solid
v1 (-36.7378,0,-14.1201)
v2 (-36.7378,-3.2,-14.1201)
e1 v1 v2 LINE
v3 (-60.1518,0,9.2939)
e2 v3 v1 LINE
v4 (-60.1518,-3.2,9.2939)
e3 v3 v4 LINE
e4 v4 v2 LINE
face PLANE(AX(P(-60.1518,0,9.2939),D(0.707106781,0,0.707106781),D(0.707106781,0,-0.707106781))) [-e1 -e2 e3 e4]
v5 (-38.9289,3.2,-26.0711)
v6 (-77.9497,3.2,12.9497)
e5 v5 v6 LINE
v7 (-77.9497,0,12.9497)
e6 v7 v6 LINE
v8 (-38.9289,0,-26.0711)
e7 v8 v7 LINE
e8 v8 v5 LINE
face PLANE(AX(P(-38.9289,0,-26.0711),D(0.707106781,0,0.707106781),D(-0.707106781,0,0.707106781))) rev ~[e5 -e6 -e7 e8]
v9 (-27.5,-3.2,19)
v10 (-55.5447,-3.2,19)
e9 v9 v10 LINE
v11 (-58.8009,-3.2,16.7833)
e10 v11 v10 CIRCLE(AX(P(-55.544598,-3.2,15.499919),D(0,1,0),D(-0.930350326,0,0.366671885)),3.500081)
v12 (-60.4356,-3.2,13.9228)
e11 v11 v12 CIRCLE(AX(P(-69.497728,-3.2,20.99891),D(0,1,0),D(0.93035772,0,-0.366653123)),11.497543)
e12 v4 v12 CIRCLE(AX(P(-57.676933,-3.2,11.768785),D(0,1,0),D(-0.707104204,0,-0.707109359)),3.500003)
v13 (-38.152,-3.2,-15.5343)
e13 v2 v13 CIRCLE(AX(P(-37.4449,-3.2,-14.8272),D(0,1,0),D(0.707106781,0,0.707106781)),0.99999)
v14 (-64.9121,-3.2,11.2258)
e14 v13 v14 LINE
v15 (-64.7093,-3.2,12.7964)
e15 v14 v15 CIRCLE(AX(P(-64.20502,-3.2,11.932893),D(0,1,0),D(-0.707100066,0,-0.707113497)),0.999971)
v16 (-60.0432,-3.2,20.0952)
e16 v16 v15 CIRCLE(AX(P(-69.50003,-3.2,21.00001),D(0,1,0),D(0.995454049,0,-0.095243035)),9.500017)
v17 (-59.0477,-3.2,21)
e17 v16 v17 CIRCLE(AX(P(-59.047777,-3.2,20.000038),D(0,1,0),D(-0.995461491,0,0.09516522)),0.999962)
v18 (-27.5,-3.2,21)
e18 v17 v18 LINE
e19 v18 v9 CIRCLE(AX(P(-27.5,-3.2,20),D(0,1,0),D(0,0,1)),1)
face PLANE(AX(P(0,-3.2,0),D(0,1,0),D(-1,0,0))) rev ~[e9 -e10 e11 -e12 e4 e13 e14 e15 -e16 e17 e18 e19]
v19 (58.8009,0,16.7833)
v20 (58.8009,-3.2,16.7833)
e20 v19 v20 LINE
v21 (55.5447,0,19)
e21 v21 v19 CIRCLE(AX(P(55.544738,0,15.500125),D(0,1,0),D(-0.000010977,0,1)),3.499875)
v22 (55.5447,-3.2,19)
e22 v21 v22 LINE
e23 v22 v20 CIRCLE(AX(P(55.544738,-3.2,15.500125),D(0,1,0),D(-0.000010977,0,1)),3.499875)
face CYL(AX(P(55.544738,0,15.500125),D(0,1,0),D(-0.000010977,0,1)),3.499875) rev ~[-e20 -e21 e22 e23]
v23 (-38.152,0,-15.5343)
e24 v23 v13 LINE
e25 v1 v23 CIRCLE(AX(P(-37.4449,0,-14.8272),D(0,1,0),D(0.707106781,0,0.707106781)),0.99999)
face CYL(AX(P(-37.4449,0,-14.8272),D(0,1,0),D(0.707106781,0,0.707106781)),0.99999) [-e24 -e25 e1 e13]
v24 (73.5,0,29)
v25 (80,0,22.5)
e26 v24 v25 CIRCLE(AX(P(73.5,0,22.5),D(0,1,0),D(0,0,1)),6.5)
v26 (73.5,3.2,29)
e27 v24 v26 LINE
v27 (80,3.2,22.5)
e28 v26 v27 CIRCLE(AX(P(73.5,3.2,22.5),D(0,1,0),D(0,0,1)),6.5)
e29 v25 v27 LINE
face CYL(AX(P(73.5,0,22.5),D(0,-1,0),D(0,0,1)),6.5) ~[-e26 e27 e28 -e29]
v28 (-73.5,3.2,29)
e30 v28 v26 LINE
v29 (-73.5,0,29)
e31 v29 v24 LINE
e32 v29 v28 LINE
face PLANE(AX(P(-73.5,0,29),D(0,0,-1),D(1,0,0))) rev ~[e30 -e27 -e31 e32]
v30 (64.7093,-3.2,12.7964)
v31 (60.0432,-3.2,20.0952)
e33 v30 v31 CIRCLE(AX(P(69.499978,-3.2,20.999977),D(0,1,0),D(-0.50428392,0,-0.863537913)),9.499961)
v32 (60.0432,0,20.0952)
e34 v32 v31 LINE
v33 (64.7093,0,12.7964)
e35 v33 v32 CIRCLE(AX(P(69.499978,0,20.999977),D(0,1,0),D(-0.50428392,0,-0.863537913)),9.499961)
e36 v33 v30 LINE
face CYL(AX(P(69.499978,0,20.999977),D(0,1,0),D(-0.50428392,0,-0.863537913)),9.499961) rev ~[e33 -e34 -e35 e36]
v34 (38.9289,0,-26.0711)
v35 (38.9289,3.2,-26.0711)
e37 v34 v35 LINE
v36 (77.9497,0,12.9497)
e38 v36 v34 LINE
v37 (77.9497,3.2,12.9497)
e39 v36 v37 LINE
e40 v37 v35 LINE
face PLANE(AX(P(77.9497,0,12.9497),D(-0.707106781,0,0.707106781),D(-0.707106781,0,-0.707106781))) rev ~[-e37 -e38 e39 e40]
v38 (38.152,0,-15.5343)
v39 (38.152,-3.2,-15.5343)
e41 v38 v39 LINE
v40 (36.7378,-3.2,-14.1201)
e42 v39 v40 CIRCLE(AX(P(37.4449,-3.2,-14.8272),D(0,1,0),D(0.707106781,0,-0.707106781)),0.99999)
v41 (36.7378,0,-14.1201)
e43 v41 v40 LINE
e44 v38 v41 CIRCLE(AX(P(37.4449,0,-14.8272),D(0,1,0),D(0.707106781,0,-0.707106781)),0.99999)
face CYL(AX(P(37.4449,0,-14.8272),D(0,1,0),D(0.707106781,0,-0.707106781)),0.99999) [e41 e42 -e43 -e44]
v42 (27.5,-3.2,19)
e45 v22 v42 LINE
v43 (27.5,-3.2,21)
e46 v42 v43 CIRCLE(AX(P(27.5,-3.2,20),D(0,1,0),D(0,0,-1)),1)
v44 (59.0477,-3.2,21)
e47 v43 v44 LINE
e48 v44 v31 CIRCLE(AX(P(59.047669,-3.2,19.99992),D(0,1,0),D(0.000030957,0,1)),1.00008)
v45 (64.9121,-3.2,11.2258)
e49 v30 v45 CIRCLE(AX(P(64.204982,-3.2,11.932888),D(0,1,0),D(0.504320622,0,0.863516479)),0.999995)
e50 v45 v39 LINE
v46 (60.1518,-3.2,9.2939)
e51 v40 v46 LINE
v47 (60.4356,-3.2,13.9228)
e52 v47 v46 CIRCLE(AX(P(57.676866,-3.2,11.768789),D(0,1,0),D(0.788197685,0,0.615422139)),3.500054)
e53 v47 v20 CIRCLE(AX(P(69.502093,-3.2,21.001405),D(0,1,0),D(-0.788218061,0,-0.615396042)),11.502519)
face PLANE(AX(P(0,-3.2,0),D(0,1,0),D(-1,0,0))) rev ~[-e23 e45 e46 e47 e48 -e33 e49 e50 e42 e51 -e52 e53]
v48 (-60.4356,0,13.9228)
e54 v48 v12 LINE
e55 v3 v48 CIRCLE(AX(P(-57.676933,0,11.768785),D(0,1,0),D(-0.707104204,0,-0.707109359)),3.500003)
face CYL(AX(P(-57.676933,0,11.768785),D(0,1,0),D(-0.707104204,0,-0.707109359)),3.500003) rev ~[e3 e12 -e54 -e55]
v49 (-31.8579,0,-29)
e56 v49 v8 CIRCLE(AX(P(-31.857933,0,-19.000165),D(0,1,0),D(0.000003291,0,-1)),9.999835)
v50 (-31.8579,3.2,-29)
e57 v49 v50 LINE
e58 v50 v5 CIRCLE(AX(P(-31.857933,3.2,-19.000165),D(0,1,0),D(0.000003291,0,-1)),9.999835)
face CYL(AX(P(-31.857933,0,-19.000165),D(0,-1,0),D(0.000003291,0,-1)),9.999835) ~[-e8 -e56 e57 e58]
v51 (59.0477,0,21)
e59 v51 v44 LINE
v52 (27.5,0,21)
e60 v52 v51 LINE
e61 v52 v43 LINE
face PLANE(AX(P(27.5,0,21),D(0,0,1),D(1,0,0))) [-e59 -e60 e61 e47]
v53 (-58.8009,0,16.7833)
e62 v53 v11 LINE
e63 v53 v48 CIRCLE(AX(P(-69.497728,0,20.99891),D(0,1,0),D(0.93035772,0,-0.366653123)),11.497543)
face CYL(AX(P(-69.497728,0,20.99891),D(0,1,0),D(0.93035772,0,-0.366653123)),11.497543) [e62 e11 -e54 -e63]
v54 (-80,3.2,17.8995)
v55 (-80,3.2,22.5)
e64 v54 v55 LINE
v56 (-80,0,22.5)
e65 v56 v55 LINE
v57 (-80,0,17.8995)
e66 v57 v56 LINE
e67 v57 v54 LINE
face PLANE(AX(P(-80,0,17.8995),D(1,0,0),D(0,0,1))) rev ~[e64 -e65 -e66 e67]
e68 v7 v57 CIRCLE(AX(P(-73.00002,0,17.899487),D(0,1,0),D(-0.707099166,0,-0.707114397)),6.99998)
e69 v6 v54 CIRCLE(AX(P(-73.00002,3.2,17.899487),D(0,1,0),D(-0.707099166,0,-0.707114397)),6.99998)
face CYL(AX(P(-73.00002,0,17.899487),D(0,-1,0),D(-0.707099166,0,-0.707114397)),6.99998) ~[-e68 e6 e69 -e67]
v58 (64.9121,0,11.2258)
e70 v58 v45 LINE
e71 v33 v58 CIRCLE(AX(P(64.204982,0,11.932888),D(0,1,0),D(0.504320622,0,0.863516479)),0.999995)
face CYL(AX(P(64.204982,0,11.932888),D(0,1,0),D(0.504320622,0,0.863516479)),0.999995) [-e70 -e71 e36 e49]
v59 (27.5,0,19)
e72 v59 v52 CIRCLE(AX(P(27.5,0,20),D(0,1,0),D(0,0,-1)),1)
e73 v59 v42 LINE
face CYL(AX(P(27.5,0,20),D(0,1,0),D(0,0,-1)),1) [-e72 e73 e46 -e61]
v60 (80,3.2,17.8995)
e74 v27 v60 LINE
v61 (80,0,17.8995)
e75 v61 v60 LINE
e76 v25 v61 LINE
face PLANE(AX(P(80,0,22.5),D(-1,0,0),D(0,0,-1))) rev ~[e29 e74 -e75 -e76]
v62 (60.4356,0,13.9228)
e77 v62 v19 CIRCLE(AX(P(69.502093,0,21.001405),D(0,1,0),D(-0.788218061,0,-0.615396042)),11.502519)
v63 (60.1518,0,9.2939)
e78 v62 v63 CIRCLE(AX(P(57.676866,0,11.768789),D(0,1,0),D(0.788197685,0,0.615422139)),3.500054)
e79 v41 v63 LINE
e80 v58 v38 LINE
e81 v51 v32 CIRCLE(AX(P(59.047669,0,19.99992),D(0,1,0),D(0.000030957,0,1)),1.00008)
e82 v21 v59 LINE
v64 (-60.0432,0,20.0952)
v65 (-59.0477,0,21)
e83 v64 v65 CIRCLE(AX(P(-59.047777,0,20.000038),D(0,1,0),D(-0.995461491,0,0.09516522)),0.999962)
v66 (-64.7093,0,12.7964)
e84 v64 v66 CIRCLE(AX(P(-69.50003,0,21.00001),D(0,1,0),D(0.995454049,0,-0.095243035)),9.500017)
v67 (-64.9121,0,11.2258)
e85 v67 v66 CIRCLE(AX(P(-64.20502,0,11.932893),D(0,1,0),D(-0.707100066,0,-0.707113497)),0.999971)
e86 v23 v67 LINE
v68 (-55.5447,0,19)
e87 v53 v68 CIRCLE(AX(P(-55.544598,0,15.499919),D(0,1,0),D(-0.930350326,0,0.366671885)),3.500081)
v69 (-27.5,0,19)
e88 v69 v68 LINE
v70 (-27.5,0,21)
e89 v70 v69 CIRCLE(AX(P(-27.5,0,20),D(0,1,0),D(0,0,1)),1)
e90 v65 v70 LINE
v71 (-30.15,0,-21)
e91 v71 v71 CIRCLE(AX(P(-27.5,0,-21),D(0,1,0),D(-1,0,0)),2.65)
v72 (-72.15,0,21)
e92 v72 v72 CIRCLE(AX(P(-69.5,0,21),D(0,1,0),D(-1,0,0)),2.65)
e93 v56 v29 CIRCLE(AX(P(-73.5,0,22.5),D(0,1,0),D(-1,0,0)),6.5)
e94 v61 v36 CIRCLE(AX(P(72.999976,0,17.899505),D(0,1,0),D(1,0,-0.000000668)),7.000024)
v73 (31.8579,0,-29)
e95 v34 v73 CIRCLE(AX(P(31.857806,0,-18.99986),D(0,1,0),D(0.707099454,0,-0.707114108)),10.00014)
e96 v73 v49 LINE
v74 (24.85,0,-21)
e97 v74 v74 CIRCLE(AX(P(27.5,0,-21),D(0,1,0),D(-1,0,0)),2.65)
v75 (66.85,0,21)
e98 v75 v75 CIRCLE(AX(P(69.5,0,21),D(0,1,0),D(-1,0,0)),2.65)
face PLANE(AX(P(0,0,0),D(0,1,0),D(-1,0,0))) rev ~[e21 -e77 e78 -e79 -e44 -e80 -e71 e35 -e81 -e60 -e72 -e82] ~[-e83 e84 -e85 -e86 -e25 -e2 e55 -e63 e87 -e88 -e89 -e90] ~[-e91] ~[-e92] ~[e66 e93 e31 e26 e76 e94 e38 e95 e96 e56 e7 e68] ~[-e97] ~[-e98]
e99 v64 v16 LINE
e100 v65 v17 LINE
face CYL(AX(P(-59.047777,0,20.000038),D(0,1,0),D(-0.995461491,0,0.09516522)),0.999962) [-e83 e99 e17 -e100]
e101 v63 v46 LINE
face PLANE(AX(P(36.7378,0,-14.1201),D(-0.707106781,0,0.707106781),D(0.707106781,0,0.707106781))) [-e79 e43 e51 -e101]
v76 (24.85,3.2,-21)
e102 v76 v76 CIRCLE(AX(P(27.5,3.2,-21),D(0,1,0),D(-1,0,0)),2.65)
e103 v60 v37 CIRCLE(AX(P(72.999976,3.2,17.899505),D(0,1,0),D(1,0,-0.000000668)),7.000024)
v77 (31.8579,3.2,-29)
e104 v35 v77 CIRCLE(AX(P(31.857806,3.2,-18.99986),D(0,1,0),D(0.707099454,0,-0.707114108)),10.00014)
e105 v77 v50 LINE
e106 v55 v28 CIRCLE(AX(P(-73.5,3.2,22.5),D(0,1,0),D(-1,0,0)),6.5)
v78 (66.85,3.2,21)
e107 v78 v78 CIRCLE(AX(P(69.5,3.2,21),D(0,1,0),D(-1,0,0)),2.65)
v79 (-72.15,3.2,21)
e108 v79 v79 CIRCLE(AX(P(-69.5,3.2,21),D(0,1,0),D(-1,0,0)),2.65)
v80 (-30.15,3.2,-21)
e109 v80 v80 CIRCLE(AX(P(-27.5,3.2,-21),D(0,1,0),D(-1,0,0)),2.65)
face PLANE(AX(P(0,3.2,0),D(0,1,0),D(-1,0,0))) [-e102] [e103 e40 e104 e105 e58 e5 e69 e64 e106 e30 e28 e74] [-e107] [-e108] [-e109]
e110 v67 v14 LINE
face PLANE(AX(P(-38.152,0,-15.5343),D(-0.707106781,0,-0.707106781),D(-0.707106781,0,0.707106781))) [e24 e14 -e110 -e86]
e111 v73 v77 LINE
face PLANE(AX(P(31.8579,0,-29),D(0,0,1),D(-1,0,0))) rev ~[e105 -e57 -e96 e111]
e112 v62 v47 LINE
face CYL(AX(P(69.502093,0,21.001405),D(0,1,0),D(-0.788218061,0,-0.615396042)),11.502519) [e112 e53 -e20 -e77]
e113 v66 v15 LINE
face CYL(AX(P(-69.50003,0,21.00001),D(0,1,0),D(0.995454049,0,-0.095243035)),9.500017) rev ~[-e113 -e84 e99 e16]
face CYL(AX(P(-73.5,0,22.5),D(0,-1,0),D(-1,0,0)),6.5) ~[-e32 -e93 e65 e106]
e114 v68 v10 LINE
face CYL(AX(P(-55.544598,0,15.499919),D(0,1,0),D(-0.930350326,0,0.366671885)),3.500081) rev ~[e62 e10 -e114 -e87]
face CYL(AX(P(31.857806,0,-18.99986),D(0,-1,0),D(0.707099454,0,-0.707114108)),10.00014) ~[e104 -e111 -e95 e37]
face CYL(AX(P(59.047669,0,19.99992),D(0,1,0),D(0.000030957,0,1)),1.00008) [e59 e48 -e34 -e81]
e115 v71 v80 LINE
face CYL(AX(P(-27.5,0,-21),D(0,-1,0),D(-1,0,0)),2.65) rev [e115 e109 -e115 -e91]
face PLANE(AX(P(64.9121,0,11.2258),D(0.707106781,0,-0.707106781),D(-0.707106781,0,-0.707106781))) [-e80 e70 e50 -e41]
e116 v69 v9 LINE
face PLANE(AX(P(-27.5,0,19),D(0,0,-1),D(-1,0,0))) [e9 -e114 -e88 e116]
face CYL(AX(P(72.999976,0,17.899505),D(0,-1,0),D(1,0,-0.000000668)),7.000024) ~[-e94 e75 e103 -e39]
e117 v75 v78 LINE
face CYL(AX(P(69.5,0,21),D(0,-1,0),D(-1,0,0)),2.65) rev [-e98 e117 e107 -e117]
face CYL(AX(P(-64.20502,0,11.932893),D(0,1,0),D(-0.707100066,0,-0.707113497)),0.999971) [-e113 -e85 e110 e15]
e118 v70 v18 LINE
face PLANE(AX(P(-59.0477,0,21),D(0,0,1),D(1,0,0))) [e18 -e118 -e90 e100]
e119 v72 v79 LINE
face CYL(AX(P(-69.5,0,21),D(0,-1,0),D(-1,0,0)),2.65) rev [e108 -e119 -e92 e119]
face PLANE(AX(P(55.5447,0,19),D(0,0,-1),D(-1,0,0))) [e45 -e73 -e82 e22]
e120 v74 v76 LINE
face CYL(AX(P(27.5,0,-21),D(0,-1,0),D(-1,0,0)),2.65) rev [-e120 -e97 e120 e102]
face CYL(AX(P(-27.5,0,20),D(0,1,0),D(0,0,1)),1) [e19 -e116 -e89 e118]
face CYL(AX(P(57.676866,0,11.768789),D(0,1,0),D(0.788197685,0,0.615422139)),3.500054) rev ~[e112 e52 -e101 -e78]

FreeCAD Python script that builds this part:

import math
import FreeCAD as App
import Part
import Sketcher
from FreeCAD import Vector
Q = App.Units.Quantity

doc = App.newDocument("Part")
body = doc.addObject("PartDesign::Body", "Body")

# Sketch on XZ plane
sketch1 = body.newObject("Sketcher::SketchObject", "Sketch")
sketch1.AttachmentSupport = (doc.getObject("XZ_Plane"), [""])
sketch1.MapMode = "FlatFace"
sketch1.addGeometry([
    Part.LineSegment(Vector(-80, 17.8995, 0), Vector(-80, 22.5, 0)),  # 0
    Part.ArcOfCircle(Part.Circle(Vector(-73.5, 22.5, 0), Vector(0, 0, 1), 6.5), math.radians(90), math.radians(180)),  # 1
    Part.LineSegment(Vector(-73.5, 29, 0), Vector(73.5, 29, 0)),  # 2
    Part.ArcOfCircle(Part.Circle(Vector(73.5, 22.5, 0), Vector(0, 0, 1), 6.5), math.radians(0), math.radians(90)),  # 3
    Part.LineSegment(Vector(80, 22.5, 0), Vector(80, 17.8995, 0)),  # 4
    Part.ArcOfCircle(Part.Circle(Vector(73, 17.8995, 0), Vector(0, 0, 1), 7), math.radians(-45.000579), math.radians(0)),  # 5
    Part.LineSegment(Vector(77.9497, 12.9497, 0), Vector(38.9289, -26.0711, 0)),  # 6
    Part.ArcOfCircle(Part.Circle(Vector(31.8579, -19, 0), Vector(0, 0, 1), 9.999975), math.radians(-90), math.radians(-45.000405)),  # 7
    Part.LineSegment(Vector(31.8579, -29, 0), Vector(-31.8579, -29, 0)),  # 8
    Part.ArcOfCircle(Part.Circle(Vector(-31.8579, -19, 0), Vector(0, 0, 1), 10), math.radians(-134.999595), math.radians(-90)),  # 9
    Part.LineSegment(Vector(-38.9289, -26.0711, 0), Vector(-77.9497, 12.9497, 0)),  # 10
    Part.ArcOfCircle(Part.Circle(Vector(-73, 17.8995, 0), Vector(0, 0, 1), 7.000004), math.radians(180), math.radians(225.000579)),  # 11
    Part.Circle(Vector(27.5, -21, 0), Vector(0, 0, 1), 2.65),  # 12
    Part.Circle(Vector(-27.5, -21, 0), Vector(0, 0, 1), 2.65),  # 13
    Part.Circle(Vector(69.5, 21, 0), Vector(0, 0, 1), 2.65),  # 14
    Part.Circle(Vector(-69.5, 21, 0), Vector(0, 0, 1), 2.65),  # 15
], False)
sketch1.addConstraint([
    Sketcher.Constraint("Tangent", 0, 2, 1, 2),
    Sketcher.Constraint("Tangent", 1, 1, 2, 1),
    Sketcher.Constraint("Tangent", 2, 2, 3, 2),
    Sketcher.Constraint("Tangent", 3, 1, 4, 1),
    Sketcher.Constraint("Tangent", 4, 2, 5, 2),
    Sketcher.Constraint("Tangent", 5, 1, 6, 1),
    Sketcher.Constraint("Tangent", 6, 2, 7, 2),
    Sketcher.Constraint("Tangent", 7, 1, 8, 1),
    Sketcher.Constraint("Tangent", 8, 2, 9, 2),
    Sketcher.Constraint("Tangent", 9, 1, 10, 1),
    Sketcher.Constraint("Tangent", 10, 2, 11, 2),
    Sketcher.Constraint("Tangent", 11, 1, 0, 1),
    Sketcher.Constraint("Vertical", 0),
    Sketcher.Constraint("Horizontal", 2),
    Sketcher.Constraint("Vertical", 4),
    Sketcher.Constraint("Horizontal", 8),
    Sketcher.Constraint("Equal", 1, 3),
    Sketcher.Constraint("Equal", 7, 9),
    Sketcher.Constraint("Equal", 5, 11),
    Sketcher.Constraint("Equal", 12, 13),
    Sketcher.Constraint("Equal", 13, 14),
    Sketcher.Constraint("Equal", 14, 15),
    Sketcher.Constraint("Symmetric", 5, 3, 11, 3, -2),
    Sketcher.Constraint("Symmetric", 12, 3, 13, 3, -2),
    Sketcher.Constraint("Symmetric", 14, 3, 15, 3, -2),
    Sketcher.Constraint("Perpendicular", 6, 10),
    Sketcher.Constraint("Horizontal", 6, 2, 9, 1),
    Sketcher.Constraint("Radius", 5, Q("7 mm")),
    Sketcher.Constraint("Radius", 7, Q("10 mm")),
    Sketcher.Constraint("Diameter", 12, Q("5.3 mm")),
    Sketcher.Constraint("Radius", 1, Q("6.5 mm")),
    Sketcher.Constraint("DistanceX", 2, 1, 2, 2, Q("147 mm")),
    Sketcher.Constraint("DistanceY", 7, 3, -1, 1, Q("19 mm")),
    Sketcher.Constraint("DistanceY", 12, 3, -1, 1, Q("21 mm")),
    Sketcher.Constraint("DistanceY", -1, 1, 14, 3, Q("21 mm")),
    Sketcher.Constraint("DistanceY", -1, 1, 1, 1, Q("29 mm")),
    Sketcher.Constraint("DistanceX", 12, 3, 3, 3, Q("46 mm")),
    Sketcher.Constraint("DistanceX", 14, 3, 3, 3, Q("4 mm")),
    Sketcher.Constraint("DistanceX", 8, 2, 8, 1, Q("63.7158 mm")),
])
pad1 = body.newObject("PartDesign::Pad", "Pad")
pad1.Profile = sketch1
pad1.Length = 3.2
pad1.Reversed = True

# Sketch on XZ plane
sketch2 = body.newObject("Sketcher::SketchObject", "Sketch001")
sketch2.AttachmentSupport = (doc.getObject("XZ_Plane"), [""])
sketch2.MapMode = "FlatFace"
sketch2.addGeometry([
    Part.LineSegment(Vector(-38.152, -15.5343, 0), Vector(-64.9121, 11.2258, 0)),  # 0
    Part.ArcOfCircle(Part.Circle(Vector(-64.205, 11.9329, 0), Vector(0, 0, 1), 0.99999), math.radians(120.28572), math.radians(225)),  # 1
    Part.ArcOfCircle(Part.Circle(Vector(-69.5, 21, 0), Vector(0, 0, 1), 9.499986), math.radians(-59.716126), math.radians(-5.465263)),  # 2
    Part.ArcOfCircle(Part.Circle(Vector(-59.0477, 20, 0), Vector(0, 0, 1), 1.000042), math.radians(90), math.radians(174.537397)),  # 3
    Part.LineSegment(Vector(-59.0477, 21, 0), Vector(-27.5, 21, 0)),  # 4
    Part.ArcOfCircle(Part.Circle(Vector(-27.5, 20, 0), Vector(0, 0, 1), 1), math.radians(-90), math.radians(90)),  # 5
    Part.LineSegment(Vector(-27.5, 19, 0), Vector(-55.5447, 19, 0)),  # 6
    Part.ArcOfCircle(Part.Circle(Vector(-55.5447, 15.5, 0), Vector(0, 0, 1), 3.499957), math.radians(90), math.radians(158.490119)),  # 7
    Part.ArcOfCircle(Part.Circle(Vector(-69.497728, 20.99891, 0), Vector(0, 0, 1), 11.497543), math.radians(-37.984291), math.radians(-21.509354)),  # 8
    Part.ArcOfCircle(Part.Circle(Vector(-57.6769, 11.7688, 0), Vector(0, 0, 1), 3.500037), math.radians(142.017191), math.radians(225)),  # 9
    Part.LineSegment(Vector(-60.1518, 9.2939, 0), Vector(-36.7378, -14.1201, 0)),  # 10
    Part.ArcOfCircle(Part.Circle(Vector(-37.4449, -14.8272, 0), Vector(0, 0, 1), 0.99999), math.radians(-135), math.radians(45)),  # 11
], False)
sketch2.addConstraint([
    Sketcher.Constraint("Tangent", 0, 2, 1, 2),
    Sketcher.Constraint("Tangent", 1, 1, 2, 1),
    Sketcher.Constraint("Tangent", 2, 2, 3, 2),
    Sketcher.Constraint("Tangent", 3, 1, 4, 1),
    Sketcher.Constraint("Tangent", 4, 2, 5, 2),
    Sketcher.Constraint("Tangent", 5, 1, 6, 1),
    Sketcher.Constraint("Tangent", 6, 2, 7, 1),
    Sketcher.Constraint("Tangent", 7, 2, 8, 2),
    Sketcher.Constraint("Tangent", 8, 1, 9, 1),
    Sketcher.Constraint("Tangent", 9, 2, 10, 1),
    Sketcher.Constraint("Tangent", 10, 2, 11, 2),
    Sketcher.Constraint("Tangent", 11, 1, 0, 1),
    Sketcher.Constraint("Horizontal", 4),
    Sketcher.Constraint("Horizontal", 6),
    Sketcher.Constraint("Equal", 1, 3),
    Sketcher.Constraint("Equal", 3, 5),
    Sketcher.Constraint("Equal", 7, 9),
    Sketcher.Constraint("Equal", 5, 11),
    Sketcher.Constraint("Parallel", 0, 10),
    Sketcher.Constraint("Horizontal", 2, 3, 3, 1),
    Sketcher.Constraint("Radius", 1, Q("1 mm")),
    Sketcher.Constraint("Radius", 2, Q("9.5 mm")),
    Sketcher.Constraint("Radius", 7, Q("3.5 mm")),
    Sketcher.Constraint("Angle", 0, Q("135 deg")),
    Sketcher.Constraint("DistanceY", -1, 1, 2, 3, Q("21 mm")),
    Sketcher.Constraint("DistanceX", 2, 3, 5, 3, Q("42 mm")),
    Sketcher.Constraint("DistanceX", 2, 3, -1, 1, Q("69.5 mm")),
    Sketcher.Constraint("Radius", 8, Q("11.4975 mm")),
    Sketcher.Constraint("DistanceY", 10, 2, -1, 1, Q("14.12 mm")),
    Sketcher.Constraint("DistanceX", 8, 3, 3, 3, Q("10.45 mm")),
    Sketcher.Constraint("DistanceY", 9, 3, 8, 3, Q("9.23 mm")),
    Sketcher.Constraint("DistanceX", 1, 3, 11, 3, Q("26.76 mm")),
])
pad2 = body.newObject("PartDesign::Pad", "Pad001")
pad2.Profile = sketch2
pad2.Length = 3.2

# Sketch on XZ plane
sketch3 = body.newObject("Sketcher::SketchObject", "Sketch002")
sketch3.AttachmentSupport = (doc.getObject("XZ_Plane"), [""])
sketch3.MapMode = "FlatFace"
sketch3.addGeometry([
    Part.LineSegment(Vector(55.5447, 19, 0), Vector(27.5, 19, 0)),  # 0
    Part.ArcOfCircle(Part.Circle(Vector(27.5, 20, 0), Vector(0, 0, 1), 1), math.radians(90), math.radians(270)),  # 1
    Part.LineSegment(Vector(27.5, 21, 0), Vector(59.0477, 21, 0)),  # 2
    Part.ArcOfCircle(Part.Circle(Vector(59.0477, 20, 0), Vector(0, 0, 1), 1), math.radians(5.462603), math.radians(90)),  # 3
    Part.ArcOfCircle(Part.Circle(Vector(69.5, 21, 0), Vector(0, 0, 1), 9.499993), math.radians(-174.534737), math.radians(-120.283874)),  # 4
    Part.ArcOfCircle(Part.Circle(Vector(64.205, 11.9329, 0), Vector(0, 0, 1), 0.999975), math.radians(-45), math.radians(59.71428)),  # 5
    Part.LineSegment(Vector(64.9121, 11.2258, 0), Vector(38.152, -15.5343, 0)),  # 6
    Part.ArcOfCircle(Part.Circle(Vector(37.4449, -14.8272, 0), Vector(0, 0, 1), 0.99999), math.radians(135), math.radians(315)),  # 7
    Part.LineSegment(Vector(36.7378, -14.1201, 0), Vector(60.1518, 9.2939, 0)),  # 8
    Part.ArcOfCircle(Part.Circle(Vector(57.6769, 11.7688, 0), Vector(0, 0, 1), 3.50002), math.radians(-45), math.radians(37.982809)),  # 9
    Part.ArcOfCircle(Part.Circle(Vector(69.502093, 21.001405, 0), Vector(0, 0, 1), 11.502519), math.radians(-158.487058), math.radians(-142.019297)),  # 10
    Part.ArcOfCircle(Part.Circle(Vector(55.5447, 15.5, 0), Vector(0, 0, 1), 3.5), math.radians(21.509881), math.radians(90)),  # 11
], False)
sketch3.addConstraint([
    Sketcher.Constraint("Tangent", 0, 2, 1, 2),
    Sketcher.Constraint("Tangent", 1, 1, 2, 1),
    Sketcher.Constraint("Tangent", 2, 2, 3, 2),
    Sketcher.Constraint("Tangent", 3, 1, 4, 1),
    Sketcher.Constraint("Tangent", 4, 2, 5, 2),
    Sketcher.Constraint("Tangent", 5, 1, 6, 1),
    Sketcher.Constraint("Tangent", 6, 2, 7, 2),
    Sketcher.Constraint("Tangent", 7, 1, 8, 1),
    Sketcher.Constraint("Tangent", 8, 2, 9, 1),
    Sketcher.Constraint("Tangent", 9, 2, 10, 2),
    Sketcher.Constraint("Tangent", 10, 1, 11, 1),
    Sketcher.Constraint("Tangent", 11, 2, 0, 1),
    Sketcher.Constraint("Horizontal", 0),
    Sketcher.Constraint("Horizontal", 2),
    Sketcher.Constraint("Equal", 1, 3),
    Sketcher.Constraint("Equal", 3, 5),
    Sketcher.Constraint("Equal", 5, 7),
    Sketcher.Constraint("Equal", 9, 11),
    Sketcher.Constraint("Parallel", 6, 8),
    Sketcher.Constraint("Horizontal", 4, 3, 1, 1),
    Sketcher.Constraint("Radius", 1, Q("1 mm")),
    Sketcher.Constraint("Radius", 4, Q("9.5 mm")),
    Sketcher.Constraint("Radius", 9, Q("3.5 mm")),
    Sketcher.Constraint("Angle", 6, Q("-135 deg")),
    Sketcher.Constraint("DistanceY", -1, 1, 1, 3, Q("20 mm")),
    Sketcher.Constraint("DistanceX", 1, 3, 4, 3, Q("42 mm")),
    Sketcher.Constraint("DistanceX", -1, 1, 1, 3, Q("27.5 mm")),
    Sketcher.Constraint("Radius", 10, Q("11.5025 mm")),
    Sketcher.Constraint("DistanceY", 7, 1, -1, 1, Q("14.12 mm")),
    Sketcher.Constraint("DistanceX", 7, 3, 5, 3, Q("26.76 mm")),
    Sketcher.Constraint("DistanceY", 5, 3, 9, 2, Q("1.99 mm")),
    Sketcher.Constraint("DistanceX", 0, 2, 0, 1, Q("28.0447 mm")),
])
pad3 = body.newObject("PartDesign::Pad", "Pad002")
pad3.Profile = sketch3
pad3.Length = 3.2

doc.recompute()
